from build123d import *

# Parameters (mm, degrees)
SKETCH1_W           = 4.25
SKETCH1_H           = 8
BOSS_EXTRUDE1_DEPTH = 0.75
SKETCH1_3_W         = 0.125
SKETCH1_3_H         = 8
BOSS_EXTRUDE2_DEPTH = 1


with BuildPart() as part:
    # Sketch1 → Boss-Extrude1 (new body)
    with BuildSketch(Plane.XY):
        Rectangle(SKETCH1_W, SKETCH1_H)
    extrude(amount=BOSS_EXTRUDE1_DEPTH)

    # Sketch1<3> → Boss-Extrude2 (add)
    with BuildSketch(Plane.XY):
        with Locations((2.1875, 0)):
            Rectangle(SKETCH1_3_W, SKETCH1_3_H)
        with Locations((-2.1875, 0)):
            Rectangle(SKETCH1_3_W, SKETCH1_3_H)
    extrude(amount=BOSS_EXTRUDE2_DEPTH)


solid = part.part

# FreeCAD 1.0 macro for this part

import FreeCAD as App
import Part
import Sketcher
from FreeCAD import Vector
Q = App.Units.Quantity


def add_polygon(sketch, points):
    """Adds a closed chain of lines whose ends are joined by coincident constraints."""
    first, n = sketch.GeometryCount, len(points)
    for a, b in zip(points, points[1:] + points[:1]):
        sketch.addGeometry(Part.LineSegment(App.Vector(*a, 0), App.Vector(*b, 0)), False)
    for i in range(n):
        sketch.addConstraint(Sketcher.Constraint("Coincident", first + i, 2, first + (i + 1) % n, 1))

doc = App.newDocument("Part")
body = doc.addObject("PartDesign::Body", "Body")

sketch1 = body.newObject("Sketcher::SketchObject", "Sketch")
sketch1.AttachmentSupport = (doc.getObject("XY_Plane"), [""])
sketch1.MapMode = "FlatFace"
add_polygon(sketch1, [(-2.1, 4), (-2.1, -4), (2.1, -4), (2.1, 4)])
sketch1.addConstraint(Sketcher.Constraint("Vertical", 0))
sketch1.addConstraint(Sketcher.Constraint("Horizontal", 1))
sketch1.addConstraint(Sketcher.Constraint("Vertical", 2))
sketch1.addConstraint(Sketcher.Constraint("Horizontal", 3))
sketch1.addConstraint(Sketcher.Constraint("Symmetric", 0, 2, 2, 2, -1, 1))
sketch1.addConstraint(Sketcher.Constraint("DistanceY", 0, 2, 0, 1, Q("8 mm")))
sketch1.addConstraint(Sketcher.Constraint("DistanceX", 1, 1, 1, 2, Q("4.25 mm")))
pad1 = body.newObject("PartDesign::Pad", "Pad")
pad1.Profile = sketch1
pad1.Length = 0.75

sketch2 = body.newObject("Sketcher::SketchObject", "Sketch001")
sketch2.AttachmentSupport = (doc.getObject("XY_Plane"), [""])
sketch2.MapMode = "FlatFace"
add_polygon(sketch2, [(2.12, 4), (2.12, -4), (2.25, -4), (2.25, 4)])
add_polygon(sketch2, [(-2.25, 4), (-2.25, -4), (-2.12, -4), (-2.12, 4)])
sketch2.addConstraint(Sketcher.Constraint("Vertical", 0))
sketch2.addConstraint(Sketcher.Constraint("Horizontal", 1))
sketch2.addConstraint(Sketcher.Constraint("Vertical", 2))
sketch2.addConstraint(Sketcher.Constraint("Horizontal", 3))
sketch2.addConstraint(Sketcher.Constraint("Vertical", 4))
sketch2.addConstraint(Sketcher.Constraint("Horizontal", 5))
sketch2.addConstraint(Sketcher.Constraint("Vertical", 6))
sketch2.addConstraint(Sketcher.Constraint("Horizontal", 7))
sketch2.addConstraint(Sketcher.Constraint("Symmetric", 2, 2, 4, 2, -1, 1))
sketch2.addConstraint(Sketcher.Constraint("Symmetric", 0, 2, 6, 2, -1, 1))
sketch2.addConstraint(Sketcher.Constraint("Horizontal", 1, 2, 4, 2))
sketch2.addConstraint(Sketcher.Constraint("DistanceY", 0, 2, 0, 1, Q("8 mm")))
sketch2.addConstraint(Sketcher.Constraint("DistanceX", 4, 2, 1, 2, Q("4.5 mm")))
sketch2.addConstraint(Sketcher.Constraint("DistanceX", 1, 1, 1, 2, Q("0.125 mm")))
pad2 = body.newObject("PartDesign::Pad", "Pad001")
pad2.Profile = sketch2
pad2.Length = 1

doc.recompute()
